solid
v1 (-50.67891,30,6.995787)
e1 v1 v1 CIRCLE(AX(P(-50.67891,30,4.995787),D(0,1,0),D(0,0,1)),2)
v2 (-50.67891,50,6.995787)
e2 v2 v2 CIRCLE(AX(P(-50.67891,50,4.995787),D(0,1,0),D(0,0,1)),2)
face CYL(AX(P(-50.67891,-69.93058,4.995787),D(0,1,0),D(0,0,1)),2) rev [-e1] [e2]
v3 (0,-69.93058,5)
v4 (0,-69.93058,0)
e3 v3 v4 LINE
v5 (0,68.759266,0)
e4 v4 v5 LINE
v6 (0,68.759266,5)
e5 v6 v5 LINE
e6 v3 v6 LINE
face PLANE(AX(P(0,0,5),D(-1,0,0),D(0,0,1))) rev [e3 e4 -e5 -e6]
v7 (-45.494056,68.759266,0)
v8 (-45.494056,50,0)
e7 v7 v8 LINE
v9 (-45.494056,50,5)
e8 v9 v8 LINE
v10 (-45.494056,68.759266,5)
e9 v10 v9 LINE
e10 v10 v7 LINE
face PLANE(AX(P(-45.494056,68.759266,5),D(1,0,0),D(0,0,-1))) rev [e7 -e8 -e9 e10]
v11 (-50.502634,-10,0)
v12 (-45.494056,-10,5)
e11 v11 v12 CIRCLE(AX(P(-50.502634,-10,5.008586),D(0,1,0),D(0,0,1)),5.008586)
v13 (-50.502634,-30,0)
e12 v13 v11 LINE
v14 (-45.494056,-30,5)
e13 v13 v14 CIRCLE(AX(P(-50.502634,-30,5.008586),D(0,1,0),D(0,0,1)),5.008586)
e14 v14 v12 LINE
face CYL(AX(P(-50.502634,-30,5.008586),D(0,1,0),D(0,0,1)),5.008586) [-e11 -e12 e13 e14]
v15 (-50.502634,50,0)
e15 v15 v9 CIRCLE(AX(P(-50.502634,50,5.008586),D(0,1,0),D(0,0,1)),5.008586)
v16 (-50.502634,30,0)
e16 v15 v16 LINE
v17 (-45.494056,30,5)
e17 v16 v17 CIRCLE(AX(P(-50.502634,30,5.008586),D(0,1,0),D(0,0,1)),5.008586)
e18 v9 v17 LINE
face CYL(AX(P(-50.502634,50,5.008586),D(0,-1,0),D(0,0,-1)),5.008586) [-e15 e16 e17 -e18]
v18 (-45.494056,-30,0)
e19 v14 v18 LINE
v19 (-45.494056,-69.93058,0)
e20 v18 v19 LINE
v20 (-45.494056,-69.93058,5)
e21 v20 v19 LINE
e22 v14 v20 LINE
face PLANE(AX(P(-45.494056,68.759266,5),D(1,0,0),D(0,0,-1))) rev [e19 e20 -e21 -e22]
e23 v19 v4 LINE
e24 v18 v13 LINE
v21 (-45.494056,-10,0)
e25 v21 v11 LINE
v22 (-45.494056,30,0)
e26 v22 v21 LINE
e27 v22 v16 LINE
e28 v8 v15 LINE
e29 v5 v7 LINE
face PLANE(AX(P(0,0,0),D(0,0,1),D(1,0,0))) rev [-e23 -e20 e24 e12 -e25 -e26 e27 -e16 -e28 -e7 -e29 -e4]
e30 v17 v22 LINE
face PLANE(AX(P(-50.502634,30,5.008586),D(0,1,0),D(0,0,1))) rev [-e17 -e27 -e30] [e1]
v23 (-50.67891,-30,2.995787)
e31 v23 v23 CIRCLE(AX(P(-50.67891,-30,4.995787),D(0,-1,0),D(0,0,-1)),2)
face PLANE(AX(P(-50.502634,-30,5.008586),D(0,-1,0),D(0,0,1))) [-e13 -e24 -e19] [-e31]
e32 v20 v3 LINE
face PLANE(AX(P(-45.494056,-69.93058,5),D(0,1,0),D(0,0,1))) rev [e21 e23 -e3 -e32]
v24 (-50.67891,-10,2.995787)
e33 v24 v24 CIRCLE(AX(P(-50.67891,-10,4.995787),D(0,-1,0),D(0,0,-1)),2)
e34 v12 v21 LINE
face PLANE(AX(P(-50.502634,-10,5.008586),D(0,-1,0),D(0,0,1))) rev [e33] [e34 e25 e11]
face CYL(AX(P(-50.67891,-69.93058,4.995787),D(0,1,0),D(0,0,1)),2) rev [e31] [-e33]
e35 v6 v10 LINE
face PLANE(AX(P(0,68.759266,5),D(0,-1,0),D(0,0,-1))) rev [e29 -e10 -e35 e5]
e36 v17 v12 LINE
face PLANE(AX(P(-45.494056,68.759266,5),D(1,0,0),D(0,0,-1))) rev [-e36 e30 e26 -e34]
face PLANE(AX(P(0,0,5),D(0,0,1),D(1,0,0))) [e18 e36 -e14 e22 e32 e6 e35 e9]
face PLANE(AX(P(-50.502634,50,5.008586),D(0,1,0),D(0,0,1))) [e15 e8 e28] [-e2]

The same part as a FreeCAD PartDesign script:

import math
import FreeCAD as App
import Part
import Sketcher
from FreeCAD import Vector
Q = App.Units.Quantity


def add_polygon(sketch, points):
    """Adds a closed chain of lines whose ends are joined by coincident constraints."""
    first, n = sketch.GeometryCount, len(points)
    for a, b in zip(points, points[1:] + points[:1]):
        sketch.addGeometry(Part.LineSegment(App.Vector(*a, 0), App.Vector(*b, 0)), False)
    for i in range(n):
        sketch.addConstraint(Sketcher.Constraint("Coincident", first + i, 2, first + (i + 1) % n, 1))

doc = App.newDocument("Part")
body = doc.addObject("PartDesign::Body", "Body")

sketch1 = doc.addObject("Sketcher::SketchObject", "Sketch")
body.addObject(sketch1)
sketch1.AttachmentSupport = (doc.XY_Plane, [""])
sketch1.MapMode = "FlatFace"
add_polygon(sketch1, [(0, 68.759266), (-45.494056, 68.759266), (-45.494056, -69.93058), (0, -69.93058)])
sketch1.addConstraint(Sketcher.Constraint("Horizontal", 0))
sketch1.addConstraint(Sketcher.Constraint("Vertical", 1))
sketch1.addConstraint(Sketcher.Constraint("Horizontal", 2))
sketch1.addConstraint(Sketcher.Constraint("Vertical", 3))
sketch1.addConstraint(Sketcher.Constraint("PointOnObject", 2, 2, -2))
sketch1.addConstraint(Sketcher.Constraint("DistanceX", 0, 2, 0, 1, Q("45.494056 mm")))
sketch1.addConstraint(Sketcher.Constraint("DistanceY", 1, 2, 1, 1, Q("138.689846 mm")))
sketch1.addConstraint(Sketcher.Constraint("DistanceY", 1, 2, -1, 1, Q("69.93058 mm")))
pad1 = doc.addObject("PartDesign::Pad", "Pad")
body.addObject(pad1)
pad1.Profile = sketch1
pad1.Length = 5

sketch2 = doc.addObject("Sketcher::SketchObject", "Sketch001")
body.addObject(sketch2)
sketch2.AttachmentSupport = (doc.XZ_Plane, [""])
sketch2.MapMode = "FlatFace"
sketch2.AttachmentOffset = App.Placement(Vector(0, 0, -30), App.Rotation())
sketch2.addGeometry(Part.LineSegment(Vector(-45.494056, 0, 0), Vector(-50.502634, 0, 0)), False)
sketch2.addGeometry(Part.ArcOfCircle(Part.Circle(Vector(-50.502634, 5.008586, 0), Vector(0, 0, 1), 5.008586), math.radians(-0.098219), math.radians(270)), False)
sketch2.addGeometry(Part.LineSegment(Vector(-45.494056, 5, 0), Vector(-45.494056, 0, 0)), False)
sketch2.addConstraint(Sketcher.Constraint("Tangent", 0, 2, 1, 2))
sketch2.addConstraint(Sketcher.Constraint("Coincident", 1, 1, 2, 1))
sketch2.addConstraint(Sketcher.Constraint("Coincident", 2, 2, 0, 1))
sketch2.addConstraint(Sketcher.Constraint("Horizontal", 0))
sketch2.addConstraint(Sketcher.Constraint("Vertical", 2))
sketch2.addConstraint(Sketcher.Constraint("PointOnObject", 0, 2, -1))
sketch2.addConstraint(Sketcher.Constraint("DistanceY", 2, 2, 2, 1, Q("5 mm")))
sketch2.addConstraint(Sketcher.Constraint("Radius", 1, Q("5.008586 mm")))
sketch2.addConstraint(Sketcher.Constraint("DistanceX", 1, 3, -1, 1, Q("50.502634 mm")))
pad2 = doc.addObject("PartDesign::Pad", "Pad001")
body.addObject(pad2)
pad2.Profile = sketch2
pad2.Length = 20
pad2.Reversed = True
doc.recompute()

datumplane = doc.addObject("PartDesign::Plane", "DatumPlane")
body.addObject(datumplane)
datumplane.AttachmentSupport = (doc.XZ_Plane, [""])
datumplane.MapMode = "FlatFace"
datumplane.AttachmentOffset = App.Placement(Vector(0, 0, -10), App.Rotation())
mirrored = doc.addObject("PartDesign::Mirrored", "Mirrored")
body.addObject(mirrored)
mirrored.Originals = [pad2]
mirrored.MirrorPlane = (datumplane, [""])
body.Tip = mirrored

sketch3 = doc.addObject("Sketcher::SketchObject", "Sketch002")
body.addObject(sketch3)
sketch3.AttachmentSupport = (doc.XZ_Plane, [""])
sketch3.MapMode = "FlatFace"
sketch3.AttachmentOffset = App.Placement(Vector(0, 0, -50), App.Rotation())
sketch3.addGeometry(Part.Circle(Vector(-50.67891, 4.995787, 0), Vector(0, 0, 1), 2), False)
sketch3.addConstraint(Sketcher.Constraint("Diameter", 0, Q("4 mm")))
sketch3.addConstraint(Sketcher.Constraint("DistanceX", 0, 3, -1, 1, Q("50.67891 mm")))
sketch3.addConstraint(Sketcher.Constraint("DistanceY", -1, 1, 0, 3, Q("4.995787 mm")))
pocket1 = doc.addObject("PartDesign::Pocket", "Pocket")
body.addObject(pocket1)
pocket1.Profile = sketch3
pocket1.Type = "ThroughAll"
pocket1.Reversed = True

doc.recompute()
